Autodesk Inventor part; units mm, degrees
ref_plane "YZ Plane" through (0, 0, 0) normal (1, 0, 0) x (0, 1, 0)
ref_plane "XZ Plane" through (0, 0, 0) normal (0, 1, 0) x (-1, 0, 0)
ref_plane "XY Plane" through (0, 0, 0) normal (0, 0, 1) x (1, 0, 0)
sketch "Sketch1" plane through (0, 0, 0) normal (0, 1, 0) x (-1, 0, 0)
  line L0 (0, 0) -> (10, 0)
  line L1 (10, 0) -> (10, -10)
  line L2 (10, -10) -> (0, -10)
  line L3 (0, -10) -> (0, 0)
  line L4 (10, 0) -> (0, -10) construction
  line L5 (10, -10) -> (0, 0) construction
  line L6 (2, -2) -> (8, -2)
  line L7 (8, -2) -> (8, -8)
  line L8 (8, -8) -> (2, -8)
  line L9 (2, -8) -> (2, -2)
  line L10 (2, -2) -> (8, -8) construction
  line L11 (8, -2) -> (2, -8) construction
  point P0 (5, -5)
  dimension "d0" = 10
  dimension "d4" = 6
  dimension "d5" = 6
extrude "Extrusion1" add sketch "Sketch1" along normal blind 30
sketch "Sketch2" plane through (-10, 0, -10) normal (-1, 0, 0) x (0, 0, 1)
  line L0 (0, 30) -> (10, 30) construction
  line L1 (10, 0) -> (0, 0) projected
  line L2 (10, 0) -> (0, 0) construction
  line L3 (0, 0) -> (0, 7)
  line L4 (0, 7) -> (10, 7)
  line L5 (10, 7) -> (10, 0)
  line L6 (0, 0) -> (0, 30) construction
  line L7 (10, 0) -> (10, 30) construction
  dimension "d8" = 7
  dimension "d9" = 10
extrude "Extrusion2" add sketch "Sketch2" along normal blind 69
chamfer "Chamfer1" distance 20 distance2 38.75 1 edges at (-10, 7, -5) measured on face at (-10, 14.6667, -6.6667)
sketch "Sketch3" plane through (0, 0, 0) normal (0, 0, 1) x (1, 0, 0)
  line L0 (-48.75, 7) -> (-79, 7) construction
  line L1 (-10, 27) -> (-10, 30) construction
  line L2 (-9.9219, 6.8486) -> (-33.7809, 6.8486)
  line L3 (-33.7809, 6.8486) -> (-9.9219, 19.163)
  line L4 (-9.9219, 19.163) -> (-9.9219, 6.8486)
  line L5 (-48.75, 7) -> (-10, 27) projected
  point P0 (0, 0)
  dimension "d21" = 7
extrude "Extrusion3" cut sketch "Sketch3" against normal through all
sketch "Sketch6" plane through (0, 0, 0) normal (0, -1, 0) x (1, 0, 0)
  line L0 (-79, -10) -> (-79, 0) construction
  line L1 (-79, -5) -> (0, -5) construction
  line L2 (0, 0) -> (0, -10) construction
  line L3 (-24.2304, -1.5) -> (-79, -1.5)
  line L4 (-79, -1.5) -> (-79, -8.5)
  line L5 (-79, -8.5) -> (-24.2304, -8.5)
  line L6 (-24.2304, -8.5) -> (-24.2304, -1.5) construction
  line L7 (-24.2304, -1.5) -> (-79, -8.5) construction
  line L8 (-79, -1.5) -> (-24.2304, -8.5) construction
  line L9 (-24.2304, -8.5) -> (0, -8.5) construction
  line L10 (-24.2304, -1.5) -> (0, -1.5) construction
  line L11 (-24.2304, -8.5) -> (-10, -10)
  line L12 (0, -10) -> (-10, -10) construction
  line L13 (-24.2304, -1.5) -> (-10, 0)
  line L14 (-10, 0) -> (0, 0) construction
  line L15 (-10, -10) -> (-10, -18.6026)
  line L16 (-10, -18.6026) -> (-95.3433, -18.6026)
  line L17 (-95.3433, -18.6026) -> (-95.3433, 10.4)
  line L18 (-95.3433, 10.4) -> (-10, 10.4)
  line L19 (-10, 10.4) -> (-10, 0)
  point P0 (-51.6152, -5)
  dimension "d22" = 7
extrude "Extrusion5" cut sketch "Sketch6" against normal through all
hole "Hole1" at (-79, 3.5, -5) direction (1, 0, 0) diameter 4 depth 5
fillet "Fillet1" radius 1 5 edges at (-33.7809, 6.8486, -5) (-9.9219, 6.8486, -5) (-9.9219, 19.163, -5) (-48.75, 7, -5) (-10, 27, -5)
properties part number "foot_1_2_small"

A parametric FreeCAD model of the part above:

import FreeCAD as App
import Part
import Sketcher
from FreeCAD import Vector
Q = App.Units.Quantity


def edges_at(feature, points):
    """Names of the edges that pass closest to the given points."""
    edges = feature.Shape.Edges
    near = lambda p: min(range(len(edges)), key=lambda i: edges[i].distToShape(Part.Vertex(*p))[0])
    return sorted({f"Edge{near(p) + 1}" for p in points})

doc = App.newDocument("Part")
body = doc.addObject("PartDesign::Body", "Body")

# Sketch on XZ plane
sketch1 = doc.addObject("Sketcher::SketchObject", "Sketch")
body.addObject(sketch1)
sketch1.AttachmentSupport = (doc.XZ_Plane, [""])
sketch1.MapMode = "FlatFace"
sketch1.addGeometry([
    Part.LineSegment(Vector(-10, 0, 0), Vector(0, 0, 0)),  # 0
    Part.LineSegment(Vector(0, 0, 0), Vector(0, -10, 0)),  # 1
    Part.LineSegment(Vector(0, -10, 0), Vector(-10, -10, 0)),  # 2
    Part.LineSegment(Vector(-10, -10, 0), Vector(-10, 0, 0)),  # 3
    Part.LineSegment(Vector(-2, -8, 0), Vector(-2, -2, 0)),  # 4
    Part.LineSegment(Vector(-2, -2, 0), Vector(-8, -2, 0)),  # 5
    Part.LineSegment(Vector(-8, -2, 0), Vector(-8, -8, 0)),  # 6
    Part.LineSegment(Vector(-8, -8, 0), Vector(-2, -8, 0)),  # 7
], False)
sketch1.addConstraint([
    Sketcher.Constraint("Coincident", 0, 2, 1, 1),
    Sketcher.Constraint("Coincident", 1, 2, 2, 1),
    Sketcher.Constraint("Coincident", 2, 2, 3, 1),
    Sketcher.Constraint("Coincident", 3, 2, 0, 1),
    Sketcher.Constraint("Coincident", 4, 2, 5, 1),
    Sketcher.Constraint("Coincident", 5, 2, 6, 1),
    Sketcher.Constraint("Coincident", 6, 2, 7, 1),
    Sketcher.Constraint("Coincident", 7, 2, 4, 1),
    Sketcher.Constraint("Horizontal", 0),
    Sketcher.Constraint("Vertical", 1),
    Sketcher.Constraint("Horizontal", 2),
    Sketcher.Constraint("Vertical", 3),
    Sketcher.Constraint("Vertical", 4),
    Sketcher.Constraint("Horizontal", 5),
    Sketcher.Constraint("Vertical", 6),
    Sketcher.Constraint("Horizontal", 7),
    Sketcher.Constraint("Coincident", 0, 2, -1, 1),
    Sketcher.Constraint("Equal", 2, 1),
    Sketcher.Constraint("Equal", 7, 4),
    Sketcher.Constraint("DistanceX", 0, 1, 0, 2, Q("10 mm")),
    Sketcher.Constraint("DistanceX", 5, 2, 5, 1, Q("6 mm")),
    Sketcher.Constraint("DistanceX", 4, 2, -1, 1, Q("2 mm")),
    Sketcher.Constraint("DistanceY", 4, 2, -1, 1, Q("2 mm")),
])
pad1 = doc.addObject("PartDesign::Pad", "Pad")
body.addObject(pad1)
pad1.Profile = sketch1
pad1.Length = 30
pad1.Reversed = True

# Sketch on YZ plane
sketch2 = doc.addObject("Sketcher::SketchObject", "Sketch001")
body.addObject(sketch2)
sketch2.AttachmentSupport = (doc.YZ_Plane, [""])
sketch2.MapMode = "FlatFace"
sketch2.AttachmentOffset = App.Placement(Vector(0, 0, -10), App.Rotation())
sketch2.addGeometry([
    Part.LineSegment(Vector(0, -10, 0), Vector(0, 0, 0)),
    Part.LineSegment(Vector(0, 0, 0), Vector(7, 0, 0)),
    Part.LineSegment(Vector(7, 0, 0), Vector(7, -10, 0)),
    Part.LineSegment(Vector(7, -10, 0), Vector(0, -10, 0)),
], False)
sketch2.addConstraint([
    Sketcher.Constraint("Coincident", 0, 2, 1, 1),
    Sketcher.Constraint("Coincident", 1, 2, 2, 1),
    Sketcher.Constraint("Coincident", 2, 2, 3, 1),
    Sketcher.Constraint("Coincident", 3, 2, 0, 1),
    Sketcher.Constraint("Vertical", 0),
    Sketcher.Constraint("Horizontal", 1),
    Sketcher.Constraint("Vertical", 2),
    Sketcher.Constraint("Horizontal", 3),
    Sketcher.Constraint("Coincident", 0, 2, -1, 1),
    Sketcher.Constraint("DistanceX", 1, 1, 1, 2, Q("7 mm")),
    Sketcher.Constraint("DistanceY", 0, 1, 0, 2, Q("10 mm")),
])
pad2 = doc.addObject("PartDesign::Pad", "Pad001")
body.addObject(pad2)
pad2.Profile = sketch2
pad2.Length = 69
pad2.Reversed = True
doc.recompute()

chamfer = doc.addObject("PartDesign::Chamfer", "Chamfer")
body.addObject(chamfer)
chamfer.Base = (pad2, edges_at(pad2, [(-10, 7, -5)]))
chamfer.ChamferType = "Two distances"
chamfer.Size = 20
chamfer.Size2 = 38.75

# Sketch on XY plane
sketch3 = doc.addObject("Sketcher::SketchObject", "Sketch002")
body.addObject(sketch3)
sketch3.AttachmentSupport = (doc.XY_Plane, [""])
sketch3.MapMode = "FlatFace"
sketch3.addGeometry([
    Part.LineSegment(Vector(-34, 7, 0), Vector(-10, 7, 0)),
    Part.LineSegment(Vector(-10, 7, 0), Vector(-10, 19, 0)),
    Part.LineSegment(Vector(-10, 19, 0), Vector(-34, 7, 0)),
], False)
sketch3.addConstraint([
    Sketcher.Constraint("Coincident", 0, 2, 1, 1),
    Sketcher.Constraint("Coincident", 1, 2, 2, 1),
    Sketcher.Constraint("Coincident", 2, 2, 0, 1),
    Sketcher.Constraint("Horizontal", 0),
    Sketcher.Constraint("Vertical", 1),
    Sketcher.Constraint("Angle", 2, Q("-152.7003 deg")),
    Sketcher.Constraint("DistanceX", 0, 1, 0, 2, Q("23.859 mm")),
    Sketcher.Constraint("DistanceX", 0, 2, -1, 1, Q("9.922 mm")),
    Sketcher.Constraint("DistanceY", -1, 1, 1, 2, Q("19.163 mm")),
])
pocket1 = doc.addObject("PartDesign::Pocket", "Pocket")
body.addObject(pocket1)
pocket1.Profile = sketch3
pocket1.Type = "ThroughAll"

# Sketch on XZ plane
sketch4 = doc.addObject("Sketcher::SketchObject", "Sketch003")
body.addObject(sketch4)
sketch4.AttachmentSupport = (doc.XZ_Plane, [""])
sketch4.MapMode = "FlatFace"
sketch4.addGeometry([
    Part.LineSegment(Vector(-79, -2, 0), Vector(-24, -2, 0)),  # 0
    Part.LineSegment(Vector(-24, -2, 0), Vector(-10, 0, 0)),  # 1
    Part.LineSegment(Vector(-10, 0, 0), Vector(-10, 10, 0)),  # 2
    Part.LineSegment(Vector(-10, 10, 0), Vector(-95, 10, 0)),  # 3
    Part.LineSegment(Vector(-95, 10, 0), Vector(-95, -19, 0)),  # 4
    Part.LineSegment(Vector(-95, -19, 0), Vector(-10, -19, 0)),  # 5
    Part.LineSegment(Vector(-10, -19, 0), Vector(-10, -10, 0)),  # 6
    Part.LineSegment(Vector(-10, -10, 0), Vector(-24, -8, 0)),  # 7
    Part.LineSegment(Vector(-24, -8, 0), Vector(-79, -8, 0)),  # 8
    Part.LineSegment(Vector(-79, -8, 0), Vector(-79, -2, 0)),  # 9
], False)
sketch4.addConstraint([
    Sketcher.Constraint("Coincident", 0, 2, 1, 1),
    Sketcher.Constraint("Coincident", 1, 2, 2, 1),
    Sketcher.Constraint("Coincident", 2, 2, 3, 1),
    Sketcher.Constraint("Coincident", 3, 2, 4, 1),
    Sketcher.Constraint("Coincident", 4, 2, 5, 1),
    Sketcher.Constraint("Coincident", 5, 2, 6, 1),
    Sketcher.Constraint("Coincident", 6, 2, 7, 1),
    Sketcher.Constraint("Coincident", 7, 2, 8, 1),
    Sketcher.Constraint("Coincident", 8, 2, 9, 1),
    Sketcher.Constraint("Coincident", 9, 2, 0, 1),
    Sketcher.Constraint("Horizontal", 0),
    Sketcher.Constraint("Vertical", 2),
    Sketcher.Constraint("Horizontal", 3),
    Sketcher.Constraint("Vertical", 4),
    Sketcher.Constraint("Horizontal", 5),
    Sketcher.Constraint("Vertical", 6),
    Sketcher.Constraint("Horizontal", 8),
    Sketcher.Constraint("Vertical", 9),
    Sketcher.Constraint("PointOnObject", 1, 2, -1),
    Sketcher.Constraint("Vertical", 2, 2, 5, 2),
    Sketcher.Constraint("Vertical", 0, 2, 7, 2),
    Sketcher.Constraint("Equal", 1, 7),
    Sketcher.Constraint("DistanceY", 9, 1, 9, 2, Q("7 mm")),
    Sketcher.Constraint("DistanceY", 2, 1, 2, 2, Q("10.4 mm")),
    Sketcher.Constraint("DistanceX", 1, 2, -1, 1, Q("10 mm")),
    Sketcher.Constraint("DistanceY", 6, 2, -1, 1, Q("10 mm")),
    Sketcher.Constraint("DistanceX", 8, 2, -1, 1, Q("79 mm")),
    Sketcher.Constraint("DistanceX", 0, 1, 0, 2, Q("54.7696 mm")),
    Sketcher.Constraint("DistanceX", 3, 2, 3, 1, Q("85.3433 mm")),
    Sketcher.Constraint("DistanceY", 4, 2, 4, 1, Q("29.0026 mm")),
])
pocket2 = doc.addObject("PartDesign::Pocket", "Pocket001")
body.addObject(pocket2)
pocket2.Profile = sketch4
pocket2.Type = "ThroughAll"

# Sketch on YZ plane
sketch5 = doc.addObject("Sketcher::SketchObject", "Sketch004")
body.addObject(sketch5)
sketch5.AttachmentSupport = (doc.YZ_Plane, [""])
sketch5.MapMode = "FlatFace"
sketch5.AttachmentOffset = App.Placement(Vector(0, 0, -79), App.Rotation())
sketch5.addGeometry(Part.Circle(Vector(3.5, -5, 0), Vector(0, 0, 1), 2), False)
sketch5.addConstraint([
    Sketcher.Constraint("Diameter", 0, Q("4 mm")),
    Sketcher.Constraint("DistanceY", 0, 3, -1, 1, Q("5 mm")),
    Sketcher.Constraint("DistanceX", -1, 1, 0, 3, Q("3.5 mm")),
])
doc.recompute()
hole = doc.addObject("PartDesign::Hole", "Hole")
body.addObject(hole)
hole.Profile = sketch5
hole.ThreadType = "None"
hole.Diameter = 4
hole.DepthType = "Dimension"
hole.Depth = 5
hole.DrillPoint = "Flat"
hole.Reversed = True
doc.recompute()

fillet = doc.addObject("PartDesign::Fillet", "Fillet")
body.addObject(fillet)
fillet.Base = (hole, edges_at(hole, [
    (-33.781, 6.849, -5),
    (-9.922, 6.849, -5),
    (-9.922, 19.163, -5),
    (-48.75, 7, -5),
    (-10, 27, -5),
]))
fillet.Radius = 1

doc.recompute()
